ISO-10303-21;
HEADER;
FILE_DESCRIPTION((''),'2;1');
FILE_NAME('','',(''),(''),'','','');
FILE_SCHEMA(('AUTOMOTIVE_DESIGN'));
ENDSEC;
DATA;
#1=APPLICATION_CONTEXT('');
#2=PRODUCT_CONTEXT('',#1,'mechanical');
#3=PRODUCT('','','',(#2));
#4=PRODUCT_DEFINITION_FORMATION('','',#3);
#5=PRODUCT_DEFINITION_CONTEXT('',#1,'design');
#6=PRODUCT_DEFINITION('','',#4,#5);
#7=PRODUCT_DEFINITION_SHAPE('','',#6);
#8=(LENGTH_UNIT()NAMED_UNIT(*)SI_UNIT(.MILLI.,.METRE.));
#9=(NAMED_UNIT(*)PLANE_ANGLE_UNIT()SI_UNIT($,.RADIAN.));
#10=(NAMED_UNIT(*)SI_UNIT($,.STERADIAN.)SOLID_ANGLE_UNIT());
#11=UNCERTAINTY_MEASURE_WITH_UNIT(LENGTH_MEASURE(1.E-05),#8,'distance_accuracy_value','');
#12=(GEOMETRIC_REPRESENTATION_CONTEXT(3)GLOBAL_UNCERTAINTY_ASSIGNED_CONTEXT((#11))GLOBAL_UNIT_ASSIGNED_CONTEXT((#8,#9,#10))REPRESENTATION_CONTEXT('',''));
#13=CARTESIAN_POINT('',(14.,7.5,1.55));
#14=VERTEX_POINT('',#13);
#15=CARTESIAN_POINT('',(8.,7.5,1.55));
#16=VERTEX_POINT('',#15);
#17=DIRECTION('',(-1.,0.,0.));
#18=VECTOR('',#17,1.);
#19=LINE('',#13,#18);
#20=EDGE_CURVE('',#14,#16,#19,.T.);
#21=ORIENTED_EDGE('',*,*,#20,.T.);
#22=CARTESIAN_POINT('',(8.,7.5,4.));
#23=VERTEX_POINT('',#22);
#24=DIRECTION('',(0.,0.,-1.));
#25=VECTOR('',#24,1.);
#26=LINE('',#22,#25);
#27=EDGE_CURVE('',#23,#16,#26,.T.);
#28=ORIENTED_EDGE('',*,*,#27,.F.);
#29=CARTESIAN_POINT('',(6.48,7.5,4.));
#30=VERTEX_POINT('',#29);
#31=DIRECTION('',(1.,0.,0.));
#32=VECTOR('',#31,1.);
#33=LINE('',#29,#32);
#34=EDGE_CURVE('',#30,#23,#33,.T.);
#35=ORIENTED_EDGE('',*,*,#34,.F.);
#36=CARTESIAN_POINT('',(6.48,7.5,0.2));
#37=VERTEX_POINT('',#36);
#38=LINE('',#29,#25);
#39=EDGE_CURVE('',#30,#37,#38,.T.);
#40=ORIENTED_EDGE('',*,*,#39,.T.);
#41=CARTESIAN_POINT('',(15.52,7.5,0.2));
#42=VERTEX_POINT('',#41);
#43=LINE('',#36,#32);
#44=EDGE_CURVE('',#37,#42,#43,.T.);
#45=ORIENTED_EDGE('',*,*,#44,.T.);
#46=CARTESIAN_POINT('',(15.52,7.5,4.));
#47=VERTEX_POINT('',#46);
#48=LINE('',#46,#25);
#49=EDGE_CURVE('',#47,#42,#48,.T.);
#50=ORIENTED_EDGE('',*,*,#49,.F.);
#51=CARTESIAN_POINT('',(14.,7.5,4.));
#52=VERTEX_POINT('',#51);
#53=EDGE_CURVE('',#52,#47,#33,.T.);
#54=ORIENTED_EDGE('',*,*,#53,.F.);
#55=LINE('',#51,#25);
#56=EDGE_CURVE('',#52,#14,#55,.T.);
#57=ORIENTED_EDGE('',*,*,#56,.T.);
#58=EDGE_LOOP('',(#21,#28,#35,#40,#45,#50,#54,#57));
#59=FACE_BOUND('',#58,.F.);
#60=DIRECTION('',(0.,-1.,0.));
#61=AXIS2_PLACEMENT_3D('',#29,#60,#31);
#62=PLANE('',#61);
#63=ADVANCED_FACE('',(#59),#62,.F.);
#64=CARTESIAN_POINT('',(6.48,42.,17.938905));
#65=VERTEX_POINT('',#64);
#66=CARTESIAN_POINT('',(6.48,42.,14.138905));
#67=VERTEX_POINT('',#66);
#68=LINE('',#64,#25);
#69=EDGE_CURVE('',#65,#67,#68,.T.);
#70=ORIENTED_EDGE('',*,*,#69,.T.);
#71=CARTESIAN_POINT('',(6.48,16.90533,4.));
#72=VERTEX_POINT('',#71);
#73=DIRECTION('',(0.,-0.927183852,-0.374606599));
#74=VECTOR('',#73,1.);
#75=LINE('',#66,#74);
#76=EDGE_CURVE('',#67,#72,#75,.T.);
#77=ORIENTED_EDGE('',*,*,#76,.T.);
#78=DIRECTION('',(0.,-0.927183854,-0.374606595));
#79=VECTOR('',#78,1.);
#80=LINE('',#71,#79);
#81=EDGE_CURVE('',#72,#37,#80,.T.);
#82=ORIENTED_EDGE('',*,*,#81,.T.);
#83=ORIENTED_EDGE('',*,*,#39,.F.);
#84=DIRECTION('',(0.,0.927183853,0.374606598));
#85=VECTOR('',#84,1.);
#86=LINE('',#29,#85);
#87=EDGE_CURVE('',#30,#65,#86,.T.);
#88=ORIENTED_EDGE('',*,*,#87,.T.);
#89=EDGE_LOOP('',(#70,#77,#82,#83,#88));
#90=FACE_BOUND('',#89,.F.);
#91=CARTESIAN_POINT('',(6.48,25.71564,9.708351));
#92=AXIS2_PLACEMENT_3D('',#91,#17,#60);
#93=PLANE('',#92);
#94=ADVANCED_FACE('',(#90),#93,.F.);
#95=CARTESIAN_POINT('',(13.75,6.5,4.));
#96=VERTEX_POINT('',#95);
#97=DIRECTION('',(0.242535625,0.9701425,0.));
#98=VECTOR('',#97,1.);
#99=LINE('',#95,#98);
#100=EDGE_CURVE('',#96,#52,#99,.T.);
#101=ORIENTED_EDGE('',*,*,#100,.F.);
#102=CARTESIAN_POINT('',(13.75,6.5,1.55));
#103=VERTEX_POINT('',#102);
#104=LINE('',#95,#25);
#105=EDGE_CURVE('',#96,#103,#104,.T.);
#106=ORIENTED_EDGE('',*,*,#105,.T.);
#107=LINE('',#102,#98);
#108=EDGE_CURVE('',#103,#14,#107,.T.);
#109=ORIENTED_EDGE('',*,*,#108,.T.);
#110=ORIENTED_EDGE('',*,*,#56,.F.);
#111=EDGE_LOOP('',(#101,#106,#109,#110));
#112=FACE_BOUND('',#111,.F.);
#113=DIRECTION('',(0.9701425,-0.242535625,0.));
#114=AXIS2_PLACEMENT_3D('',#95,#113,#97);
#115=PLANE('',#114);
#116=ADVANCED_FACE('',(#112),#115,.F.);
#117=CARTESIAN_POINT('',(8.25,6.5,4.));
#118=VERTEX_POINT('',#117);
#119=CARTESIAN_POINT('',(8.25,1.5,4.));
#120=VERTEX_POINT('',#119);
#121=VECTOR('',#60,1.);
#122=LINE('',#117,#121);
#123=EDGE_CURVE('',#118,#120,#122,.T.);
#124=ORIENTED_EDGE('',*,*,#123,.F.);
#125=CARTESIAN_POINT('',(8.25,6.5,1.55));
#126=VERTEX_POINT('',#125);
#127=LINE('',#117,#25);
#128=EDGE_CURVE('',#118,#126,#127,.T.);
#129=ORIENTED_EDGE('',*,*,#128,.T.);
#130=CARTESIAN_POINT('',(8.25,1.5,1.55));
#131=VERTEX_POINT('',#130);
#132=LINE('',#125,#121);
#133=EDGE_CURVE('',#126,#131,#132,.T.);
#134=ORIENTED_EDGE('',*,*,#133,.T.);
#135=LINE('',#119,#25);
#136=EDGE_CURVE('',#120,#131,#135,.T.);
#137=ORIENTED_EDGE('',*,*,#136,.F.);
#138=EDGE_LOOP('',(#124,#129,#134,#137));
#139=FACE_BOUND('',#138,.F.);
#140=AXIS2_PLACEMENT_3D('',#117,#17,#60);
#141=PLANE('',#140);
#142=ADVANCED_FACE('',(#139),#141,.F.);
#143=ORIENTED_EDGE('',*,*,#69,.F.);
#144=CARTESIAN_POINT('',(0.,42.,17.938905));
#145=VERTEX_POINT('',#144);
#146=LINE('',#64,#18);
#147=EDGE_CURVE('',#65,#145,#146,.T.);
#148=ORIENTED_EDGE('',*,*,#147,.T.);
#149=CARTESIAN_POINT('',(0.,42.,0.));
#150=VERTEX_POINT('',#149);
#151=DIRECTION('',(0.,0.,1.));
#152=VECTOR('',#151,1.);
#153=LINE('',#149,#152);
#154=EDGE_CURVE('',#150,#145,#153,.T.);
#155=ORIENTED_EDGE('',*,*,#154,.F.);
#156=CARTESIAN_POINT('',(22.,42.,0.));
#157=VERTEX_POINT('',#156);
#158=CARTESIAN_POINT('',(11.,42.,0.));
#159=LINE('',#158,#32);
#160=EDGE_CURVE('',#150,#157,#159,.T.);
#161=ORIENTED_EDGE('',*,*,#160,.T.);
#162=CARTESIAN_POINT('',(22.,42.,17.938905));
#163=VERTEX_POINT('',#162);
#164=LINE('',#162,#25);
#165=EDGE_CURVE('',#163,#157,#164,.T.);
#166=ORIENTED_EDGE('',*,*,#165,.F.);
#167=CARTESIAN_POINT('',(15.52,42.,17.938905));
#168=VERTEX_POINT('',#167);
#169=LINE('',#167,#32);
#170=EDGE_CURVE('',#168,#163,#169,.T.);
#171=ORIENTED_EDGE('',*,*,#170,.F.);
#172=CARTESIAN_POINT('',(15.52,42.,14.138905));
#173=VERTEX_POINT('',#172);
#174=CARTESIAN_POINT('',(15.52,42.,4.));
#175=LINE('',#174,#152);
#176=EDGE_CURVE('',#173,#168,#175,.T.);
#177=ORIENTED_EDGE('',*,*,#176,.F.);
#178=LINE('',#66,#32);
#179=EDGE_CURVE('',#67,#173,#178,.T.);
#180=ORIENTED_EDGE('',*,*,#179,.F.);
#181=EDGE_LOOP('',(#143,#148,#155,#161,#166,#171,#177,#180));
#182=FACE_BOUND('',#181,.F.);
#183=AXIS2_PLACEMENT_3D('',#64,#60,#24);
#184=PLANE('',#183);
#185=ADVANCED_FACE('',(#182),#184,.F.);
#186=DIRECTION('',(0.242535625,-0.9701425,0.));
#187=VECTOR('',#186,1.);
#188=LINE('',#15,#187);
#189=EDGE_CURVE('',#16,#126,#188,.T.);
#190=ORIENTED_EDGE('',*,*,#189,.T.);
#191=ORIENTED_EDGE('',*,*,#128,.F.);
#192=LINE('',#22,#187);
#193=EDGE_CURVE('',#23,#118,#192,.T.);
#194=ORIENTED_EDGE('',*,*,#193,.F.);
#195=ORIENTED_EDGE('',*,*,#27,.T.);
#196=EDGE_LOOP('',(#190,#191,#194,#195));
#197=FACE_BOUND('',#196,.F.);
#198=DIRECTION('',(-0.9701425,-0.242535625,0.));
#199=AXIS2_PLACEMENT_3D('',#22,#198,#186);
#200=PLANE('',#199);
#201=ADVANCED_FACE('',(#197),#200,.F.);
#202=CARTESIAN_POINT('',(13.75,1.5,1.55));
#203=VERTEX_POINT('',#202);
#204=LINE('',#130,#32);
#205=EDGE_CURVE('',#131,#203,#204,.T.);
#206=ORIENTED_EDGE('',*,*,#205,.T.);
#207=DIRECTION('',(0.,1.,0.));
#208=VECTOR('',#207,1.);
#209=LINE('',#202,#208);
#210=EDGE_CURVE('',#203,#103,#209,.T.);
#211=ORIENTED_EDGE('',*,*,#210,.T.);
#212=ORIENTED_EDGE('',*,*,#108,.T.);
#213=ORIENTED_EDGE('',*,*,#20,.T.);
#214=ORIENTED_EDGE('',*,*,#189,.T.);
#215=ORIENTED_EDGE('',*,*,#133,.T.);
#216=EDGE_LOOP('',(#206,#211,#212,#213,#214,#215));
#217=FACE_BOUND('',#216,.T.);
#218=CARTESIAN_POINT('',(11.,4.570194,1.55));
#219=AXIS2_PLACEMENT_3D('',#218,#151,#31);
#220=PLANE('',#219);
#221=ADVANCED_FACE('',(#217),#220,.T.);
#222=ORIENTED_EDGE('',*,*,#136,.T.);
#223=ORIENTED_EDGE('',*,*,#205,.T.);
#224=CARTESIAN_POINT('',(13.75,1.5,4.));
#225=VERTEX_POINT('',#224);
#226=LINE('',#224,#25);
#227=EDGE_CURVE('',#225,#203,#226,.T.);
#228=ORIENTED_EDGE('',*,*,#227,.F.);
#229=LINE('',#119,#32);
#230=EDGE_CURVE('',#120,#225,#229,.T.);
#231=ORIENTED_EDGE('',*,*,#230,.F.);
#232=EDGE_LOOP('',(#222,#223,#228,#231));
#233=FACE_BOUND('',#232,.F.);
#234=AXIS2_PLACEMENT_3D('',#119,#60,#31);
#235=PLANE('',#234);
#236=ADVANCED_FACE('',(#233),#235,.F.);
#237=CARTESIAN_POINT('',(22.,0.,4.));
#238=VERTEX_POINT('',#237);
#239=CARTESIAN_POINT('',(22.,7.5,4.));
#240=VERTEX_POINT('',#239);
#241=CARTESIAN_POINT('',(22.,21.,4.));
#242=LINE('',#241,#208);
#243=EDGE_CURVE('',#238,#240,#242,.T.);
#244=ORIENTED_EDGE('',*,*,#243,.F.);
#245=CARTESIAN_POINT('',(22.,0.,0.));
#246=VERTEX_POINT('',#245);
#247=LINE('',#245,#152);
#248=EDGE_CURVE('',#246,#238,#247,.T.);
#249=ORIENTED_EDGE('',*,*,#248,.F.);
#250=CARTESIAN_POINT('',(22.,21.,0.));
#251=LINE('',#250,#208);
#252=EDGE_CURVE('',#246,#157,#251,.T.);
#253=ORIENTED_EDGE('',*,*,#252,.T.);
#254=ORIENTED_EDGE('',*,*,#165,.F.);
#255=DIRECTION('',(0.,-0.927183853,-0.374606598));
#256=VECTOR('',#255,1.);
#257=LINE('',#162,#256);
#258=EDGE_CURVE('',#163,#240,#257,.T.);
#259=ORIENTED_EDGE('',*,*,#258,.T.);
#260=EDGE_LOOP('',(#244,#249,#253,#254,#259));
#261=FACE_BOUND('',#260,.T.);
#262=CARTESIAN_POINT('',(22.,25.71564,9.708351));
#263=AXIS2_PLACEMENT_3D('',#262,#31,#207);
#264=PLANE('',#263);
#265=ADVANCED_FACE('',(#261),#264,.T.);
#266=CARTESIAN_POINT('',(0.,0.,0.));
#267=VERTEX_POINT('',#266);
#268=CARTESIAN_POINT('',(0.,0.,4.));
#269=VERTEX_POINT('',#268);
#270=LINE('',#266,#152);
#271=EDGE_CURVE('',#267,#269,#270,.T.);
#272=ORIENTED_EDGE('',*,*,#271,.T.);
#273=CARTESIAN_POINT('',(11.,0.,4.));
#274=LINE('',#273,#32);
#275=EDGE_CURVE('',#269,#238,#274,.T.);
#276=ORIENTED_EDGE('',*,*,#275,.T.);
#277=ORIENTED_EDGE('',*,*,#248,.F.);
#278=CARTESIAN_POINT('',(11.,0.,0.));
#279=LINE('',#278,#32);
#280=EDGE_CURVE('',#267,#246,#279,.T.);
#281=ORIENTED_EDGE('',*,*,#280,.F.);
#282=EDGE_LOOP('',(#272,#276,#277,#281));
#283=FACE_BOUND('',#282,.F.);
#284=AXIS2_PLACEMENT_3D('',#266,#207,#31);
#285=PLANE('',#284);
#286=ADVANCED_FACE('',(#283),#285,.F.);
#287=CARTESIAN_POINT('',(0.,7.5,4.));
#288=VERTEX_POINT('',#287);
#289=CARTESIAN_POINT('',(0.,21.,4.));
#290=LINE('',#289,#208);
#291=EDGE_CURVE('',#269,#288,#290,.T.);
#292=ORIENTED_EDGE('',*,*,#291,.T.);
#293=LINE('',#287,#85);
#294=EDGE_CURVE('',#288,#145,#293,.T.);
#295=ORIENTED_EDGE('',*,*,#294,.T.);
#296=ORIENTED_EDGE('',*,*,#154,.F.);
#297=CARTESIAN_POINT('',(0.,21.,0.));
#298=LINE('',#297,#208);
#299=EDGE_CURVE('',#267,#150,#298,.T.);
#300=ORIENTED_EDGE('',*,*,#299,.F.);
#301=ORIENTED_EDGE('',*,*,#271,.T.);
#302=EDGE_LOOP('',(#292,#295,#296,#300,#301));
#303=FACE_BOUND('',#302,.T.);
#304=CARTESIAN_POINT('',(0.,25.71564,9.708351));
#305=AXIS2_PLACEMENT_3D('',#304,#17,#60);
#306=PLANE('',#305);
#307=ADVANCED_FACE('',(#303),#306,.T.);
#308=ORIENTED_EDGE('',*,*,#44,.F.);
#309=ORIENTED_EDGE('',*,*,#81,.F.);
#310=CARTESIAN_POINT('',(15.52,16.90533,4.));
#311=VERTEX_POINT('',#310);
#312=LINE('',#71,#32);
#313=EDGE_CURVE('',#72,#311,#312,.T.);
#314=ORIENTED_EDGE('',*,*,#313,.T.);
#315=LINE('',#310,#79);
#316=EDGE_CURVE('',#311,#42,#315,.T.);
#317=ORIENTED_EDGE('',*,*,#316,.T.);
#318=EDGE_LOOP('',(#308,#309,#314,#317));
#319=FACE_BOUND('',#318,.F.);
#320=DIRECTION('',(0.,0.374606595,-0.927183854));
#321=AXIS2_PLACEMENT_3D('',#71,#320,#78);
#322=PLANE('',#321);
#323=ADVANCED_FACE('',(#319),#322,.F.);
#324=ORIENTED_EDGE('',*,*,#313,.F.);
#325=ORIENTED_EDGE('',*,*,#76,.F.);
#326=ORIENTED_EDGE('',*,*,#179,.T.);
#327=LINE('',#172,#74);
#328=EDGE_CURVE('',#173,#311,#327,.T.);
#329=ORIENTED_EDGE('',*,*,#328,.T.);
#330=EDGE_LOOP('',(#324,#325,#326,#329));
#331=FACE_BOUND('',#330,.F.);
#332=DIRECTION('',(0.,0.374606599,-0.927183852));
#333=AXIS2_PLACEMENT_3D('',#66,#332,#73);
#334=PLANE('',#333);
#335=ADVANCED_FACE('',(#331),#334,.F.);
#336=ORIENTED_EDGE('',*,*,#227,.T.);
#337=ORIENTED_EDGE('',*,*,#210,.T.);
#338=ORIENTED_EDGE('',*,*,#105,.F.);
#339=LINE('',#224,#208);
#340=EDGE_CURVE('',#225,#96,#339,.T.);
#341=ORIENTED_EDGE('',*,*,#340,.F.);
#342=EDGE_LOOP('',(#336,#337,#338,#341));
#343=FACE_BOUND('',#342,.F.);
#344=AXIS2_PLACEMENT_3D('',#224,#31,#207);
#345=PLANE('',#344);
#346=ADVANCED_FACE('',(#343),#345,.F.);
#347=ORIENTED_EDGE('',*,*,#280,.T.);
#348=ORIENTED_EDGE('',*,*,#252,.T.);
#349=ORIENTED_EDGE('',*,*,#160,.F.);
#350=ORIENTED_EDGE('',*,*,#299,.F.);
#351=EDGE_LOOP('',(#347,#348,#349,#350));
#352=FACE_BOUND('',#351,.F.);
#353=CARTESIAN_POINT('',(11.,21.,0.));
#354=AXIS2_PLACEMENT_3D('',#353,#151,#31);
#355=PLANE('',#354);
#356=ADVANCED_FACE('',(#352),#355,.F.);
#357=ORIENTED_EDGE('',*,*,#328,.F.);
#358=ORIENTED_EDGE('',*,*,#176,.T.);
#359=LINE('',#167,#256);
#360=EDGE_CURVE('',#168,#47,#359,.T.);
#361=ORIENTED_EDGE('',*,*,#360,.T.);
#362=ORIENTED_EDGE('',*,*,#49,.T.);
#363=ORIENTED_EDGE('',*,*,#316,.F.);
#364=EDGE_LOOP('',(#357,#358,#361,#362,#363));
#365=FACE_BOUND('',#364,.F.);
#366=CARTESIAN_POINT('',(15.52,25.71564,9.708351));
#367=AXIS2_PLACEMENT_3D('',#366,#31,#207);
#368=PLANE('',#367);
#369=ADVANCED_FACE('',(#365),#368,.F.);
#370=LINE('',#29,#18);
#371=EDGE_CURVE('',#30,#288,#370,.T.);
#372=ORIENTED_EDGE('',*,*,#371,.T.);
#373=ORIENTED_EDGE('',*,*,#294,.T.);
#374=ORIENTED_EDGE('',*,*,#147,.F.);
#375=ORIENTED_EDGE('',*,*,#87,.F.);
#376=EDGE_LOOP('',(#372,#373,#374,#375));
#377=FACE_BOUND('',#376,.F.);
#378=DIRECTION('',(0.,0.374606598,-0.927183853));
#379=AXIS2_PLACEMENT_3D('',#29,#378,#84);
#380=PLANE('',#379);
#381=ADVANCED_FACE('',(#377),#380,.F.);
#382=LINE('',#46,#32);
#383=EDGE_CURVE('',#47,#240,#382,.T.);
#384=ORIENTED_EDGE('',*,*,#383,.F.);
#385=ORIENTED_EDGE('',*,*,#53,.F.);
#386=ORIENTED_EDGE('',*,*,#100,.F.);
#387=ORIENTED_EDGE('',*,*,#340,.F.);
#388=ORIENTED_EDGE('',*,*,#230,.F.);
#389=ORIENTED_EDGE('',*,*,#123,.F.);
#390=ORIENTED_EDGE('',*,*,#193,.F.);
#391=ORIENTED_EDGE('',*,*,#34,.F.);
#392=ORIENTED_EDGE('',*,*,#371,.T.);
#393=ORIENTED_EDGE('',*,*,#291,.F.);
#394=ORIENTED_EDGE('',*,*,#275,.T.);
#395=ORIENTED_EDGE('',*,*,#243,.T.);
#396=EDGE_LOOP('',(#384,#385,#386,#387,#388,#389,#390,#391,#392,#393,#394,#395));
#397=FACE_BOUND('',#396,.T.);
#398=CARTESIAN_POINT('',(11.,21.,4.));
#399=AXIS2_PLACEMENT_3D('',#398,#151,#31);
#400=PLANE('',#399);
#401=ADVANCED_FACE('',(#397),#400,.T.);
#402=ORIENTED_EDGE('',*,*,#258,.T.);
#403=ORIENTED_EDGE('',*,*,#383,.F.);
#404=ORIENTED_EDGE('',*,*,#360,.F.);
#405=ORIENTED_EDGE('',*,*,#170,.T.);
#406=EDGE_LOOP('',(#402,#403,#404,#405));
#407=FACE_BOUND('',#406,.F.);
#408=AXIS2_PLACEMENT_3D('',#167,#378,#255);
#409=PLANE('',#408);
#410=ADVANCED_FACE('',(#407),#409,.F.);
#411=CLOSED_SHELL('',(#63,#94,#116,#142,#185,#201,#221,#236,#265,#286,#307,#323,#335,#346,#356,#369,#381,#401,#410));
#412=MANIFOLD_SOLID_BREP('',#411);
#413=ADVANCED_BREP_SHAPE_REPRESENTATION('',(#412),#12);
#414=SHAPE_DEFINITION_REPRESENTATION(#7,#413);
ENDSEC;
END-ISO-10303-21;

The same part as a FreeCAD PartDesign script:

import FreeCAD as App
import Part
import Sketcher
Q = App.Units.Quantity


def add_polygon(sketch, points):
    """Adds a closed chain of lines whose ends are joined by coincident constraints."""
    first, n = sketch.GeometryCount, len(points)
    for a, b in zip(points, points[1:] + points[:1]):
        sketch.addGeometry(Part.LineSegment(App.Vector(*a, 0), App.Vector(*b, 0)), False)
    for i in range(n):
        sketch.addConstraint(Sketcher.Constraint("Coincident", first + i, 2, first + (i + 1) % n, 1))

doc = App.newDocument("Part")
body = doc.addObject("PartDesign::Body", "Body")

# Sketch on XY plane
sketch1 = doc.addObject("Sketcher::SketchObject", "Sketch")
body.addObject(sketch1)
sketch1.AttachmentSupport = (doc.XY_Plane, [""])
sketch1.MapMode = "FlatFace"
add_polygon(sketch1, [(0, 42), (0, 0), (22, 0), (22, 42)])  # lines 0-3
sketch1.addConstraint(Sketcher.Constraint("Vertical", 0))
sketch1.addConstraint(Sketcher.Constraint("Horizontal", 1))
sketch1.addConstraint(Sketcher.Constraint("Vertical", 2))
sketch1.addConstraint(Sketcher.Constraint("Horizontal", 3))
sketch1.addConstraint(Sketcher.Constraint("Coincident", 0, 2, -1, 1))
sketch1.addConstraint(Sketcher.Constraint("DistanceX", 1, 1, 1, 2, 22.0))
sketch1.addConstraint(Sketcher.Constraint("DistanceY", 0, 2, 0, 1, 42.0))
pad1 = doc.addObject("PartDesign::Pad", "Pad")
body.addObject(pad1)
pad1.Profile = sketch1
pad1.Length = 4

# Sketch on XY plane
sketch2 = doc.addObject("Sketcher::SketchObject", "Sketch001")
body.addObject(sketch2)
sketch2.AttachmentSupport = (doc.XY_Plane, [""])
sketch2.MapMode = "FlatFace"
sketch2.AttachmentOffset = App.Placement(App.Vector(0, 0, 4), App.Rotation())
add_polygon(sketch2, [(8.2, 6.5), (8.2, 1.5), (13.8, 1.5), (13.8, 6.5), (14, 7.5), (8, 7.5)])  # lines 0-5
sketch2.addConstraint(Sketcher.Constraint("Vertical", 0))
sketch2.addConstraint(Sketcher.Constraint("Horizontal", 1))
sketch2.addConstraint(Sketcher.Constraint("Vertical", 2))
sketch2.addConstraint(Sketcher.Constraint("Horizontal", 4))
sketch2.addConstraint(Sketcher.Constraint("Horizontal", 2, 2, 5, 2))
sketch2.addConstraint(Sketcher.Constraint("Equal", 3, 5))
sketch2.addConstraint(Sketcher.Constraint("DistanceX", 4, 2, 4, 1, 6.0))
sketch2.addConstraint(Sketcher.Constraint("DistanceY", 0, 2, 0, 1, 5.0))
sketch2.addConstraint(Sketcher.Constraint("DistanceX", 1, 1, 1, 2, 5.5))
sketch2.addConstraint(Sketcher.Constraint("DistanceX", -1, 1, 3, 2, 14.0))
sketch2.addConstraint(Sketcher.Constraint("DistanceY", 2, 2, 3, 2, 1.0))
sketch2.addConstraint(Sketcher.Constraint("DistanceY", -1, 1, 0, 2, 1.5))
pocket1 = doc.addObject("PartDesign::Pocket", "Pocket")
body.addObject(pocket1)
pocket1.Profile = sketch2
pocket1.Length = 2.45

# Sketch on XY plane
sketch3 = doc.addObject("Sketcher::SketchObject", "Sketch002")
body.addObject(sketch3)
sketch3.AttachmentSupport = (doc.XY_Plane, [""])
sketch3.MapMode = "FlatFace"
sketch3.AttachmentOffset = App.Placement(App.Vector(0, 0, 4), App.Rotation())
add_polygon(sketch3, [(16, 8), (16, 42), (6, 42), (6, 8)])  # lines 0-3
sketch3.addConstraint(Sketcher.Constraint("Vertical", 0))
sketch3.addConstraint(Sketcher.Constraint("Horizontal", 1))
sketch3.addConstraint(Sketcher.Constraint("Vertical", 2))
sketch3.addConstraint(Sketcher.Constraint("Horizontal", 3))
sketch3.addConstraint(Sketcher.Constraint("DistanceY", 0, 1, 0, 2, 34.5))
sketch3.addConstraint(Sketcher.Constraint("DistanceY", -1, 1, 0, 2, 42.0))
sketch3.addConstraint(Sketcher.Constraint("DistanceX", 1, 2, 1, 1, 9.04))
sketch3.addConstraint(Sketcher.Constraint("DistanceX", -1, 1, 0, 2, 15.52))
pocket2 = doc.addObject("PartDesign::Pocket", "Pocket001")
body.addObject(pocket2)
pocket2.Profile = sketch3
pocket2.Length = 3.8

# Sketch on YZ plane
sketch4 = doc.addObject("Sketcher::SketchObject", "Sketch003")
body.addObject(sketch4)
sketch4.AttachmentSupport = (doc.YZ_Plane, [""])
sketch4.MapMode = "FlatFace"
sketch4.AttachmentOffset = App.Placement(App.Vector(0, 0, 6.48), App.Rotation())
add_polygon(sketch4, [(42, 14), (17, 4), (8, 0), (42, 0)])  # lines 0-3
sketch4.addConstraint(Sketcher.Constraint("Horizontal", 2))
sketch4.addConstraint(Sketcher.Constraint("Vertical", 3))
sketch4.addConstraint(Sketcher.Constraint("Parallel", 0, 1))
sketch4.addConstraint(Sketcher.Constraint("Angle", 0, Q("-158 deg")))
sketch4.addConstraint(Sketcher.Constraint("DistanceX", 2, 1, 2, 2, 34.5))
sketch4.addConstraint(Sketcher.Constraint("DistanceY", -1, 1, 0, 2, 4.0))
sketch4.addConstraint(Sketcher.Constraint("DistanceX", -1, 1, 2, 2, 42.0))
sketch4.addConstraint(Sketcher.Constraint("DistanceY", -1, 1, 1, 2, 0.2))
pad2 = doc.addObject("PartDesign::Pad", "Pad001")
body.addObject(pad2)
pad2.Profile = sketch4
pad2.Length = 9.04

# Sketch on YZ plane
sketch5 = doc.addObject("Sketcher::SketchObject", "Sketch004")
body.addObject(sketch5)
sketch5.AttachmentSupport = (doc.YZ_Plane, [""])
sketch5.MapMode = "FlatFace"
sketch5.AttachmentOffset = App.Placement(App.Vector(0, 0, 15.52), App.Rotation())
add_polygon(sketch5, [(42, 18), (8, 4), (42, 4)])  # lines 0-2
sketch5.addConstraint(Sketcher.Constraint("Horizontal", 1))
sketch5.addConstraint(Sketcher.Constraint("Vertical", 2))
sketch5.addConstraint(Sketcher.Constraint("Angle", 0, Q("-158 deg")))
sketch5.addConstraint(Sketcher.Constraint("DistanceX", 1, 1, 1, 2, 34.5))
sketch5.addConstraint(Sketcher.Constraint("DistanceY", -1, 1, 0, 2, 4.0))
sketch5.addConstraint(Sketcher.Constraint("DistanceX", -1, 1, 1, 2, 42.0))
pad3 = doc.addObject("PartDesign::Pad", "Pad002")
body.addObject(pad3)
pad3.Profile = sketch5
pad3.Length = 6.48

# Sketch on YZ plane
sketch6 = doc.addObject("Sketcher::SketchObject", "Sketch005")
body.addObject(sketch6)
sketch6.AttachmentSupport = (doc.YZ_Plane, [""])
sketch6.MapMode = "FlatFace"
sketch6.AttachmentOffset = App.Placement(App.Vector(0, 0, 6.48), App.Rotation())
add_polygon(sketch6, [(42, 18), (42, 4), (8, 4)])  # lines 0-2
sketch6.addConstraint(Sketcher.Constraint("Vertical", 0))
sketch6.addConstraint(Sketcher.Constraint("Horizontal", 1))
sketch6.addConstraint(Sketcher.Constraint("Angle", 2, Q("22 deg")))
sketch6.addConstraint(Sketcher.Constraint("DistanceX", 1, 2, 1, 1, 34.5))
sketch6.addConstraint(Sketcher.Constraint("DistanceX", -1, 1, 0, 2, 42.0))
sketch6.addConstraint(Sketcher.Constraint("DistanceY", -1, 1, 0, 2, 4.0))
pad4 = doc.addObject("PartDesign::Pad", "Pad003")
body.addObject(pad4)
pad4.Profile = sketch6
pad4.Length = 6.48
pad4.Reversed = True

doc.recompute()
